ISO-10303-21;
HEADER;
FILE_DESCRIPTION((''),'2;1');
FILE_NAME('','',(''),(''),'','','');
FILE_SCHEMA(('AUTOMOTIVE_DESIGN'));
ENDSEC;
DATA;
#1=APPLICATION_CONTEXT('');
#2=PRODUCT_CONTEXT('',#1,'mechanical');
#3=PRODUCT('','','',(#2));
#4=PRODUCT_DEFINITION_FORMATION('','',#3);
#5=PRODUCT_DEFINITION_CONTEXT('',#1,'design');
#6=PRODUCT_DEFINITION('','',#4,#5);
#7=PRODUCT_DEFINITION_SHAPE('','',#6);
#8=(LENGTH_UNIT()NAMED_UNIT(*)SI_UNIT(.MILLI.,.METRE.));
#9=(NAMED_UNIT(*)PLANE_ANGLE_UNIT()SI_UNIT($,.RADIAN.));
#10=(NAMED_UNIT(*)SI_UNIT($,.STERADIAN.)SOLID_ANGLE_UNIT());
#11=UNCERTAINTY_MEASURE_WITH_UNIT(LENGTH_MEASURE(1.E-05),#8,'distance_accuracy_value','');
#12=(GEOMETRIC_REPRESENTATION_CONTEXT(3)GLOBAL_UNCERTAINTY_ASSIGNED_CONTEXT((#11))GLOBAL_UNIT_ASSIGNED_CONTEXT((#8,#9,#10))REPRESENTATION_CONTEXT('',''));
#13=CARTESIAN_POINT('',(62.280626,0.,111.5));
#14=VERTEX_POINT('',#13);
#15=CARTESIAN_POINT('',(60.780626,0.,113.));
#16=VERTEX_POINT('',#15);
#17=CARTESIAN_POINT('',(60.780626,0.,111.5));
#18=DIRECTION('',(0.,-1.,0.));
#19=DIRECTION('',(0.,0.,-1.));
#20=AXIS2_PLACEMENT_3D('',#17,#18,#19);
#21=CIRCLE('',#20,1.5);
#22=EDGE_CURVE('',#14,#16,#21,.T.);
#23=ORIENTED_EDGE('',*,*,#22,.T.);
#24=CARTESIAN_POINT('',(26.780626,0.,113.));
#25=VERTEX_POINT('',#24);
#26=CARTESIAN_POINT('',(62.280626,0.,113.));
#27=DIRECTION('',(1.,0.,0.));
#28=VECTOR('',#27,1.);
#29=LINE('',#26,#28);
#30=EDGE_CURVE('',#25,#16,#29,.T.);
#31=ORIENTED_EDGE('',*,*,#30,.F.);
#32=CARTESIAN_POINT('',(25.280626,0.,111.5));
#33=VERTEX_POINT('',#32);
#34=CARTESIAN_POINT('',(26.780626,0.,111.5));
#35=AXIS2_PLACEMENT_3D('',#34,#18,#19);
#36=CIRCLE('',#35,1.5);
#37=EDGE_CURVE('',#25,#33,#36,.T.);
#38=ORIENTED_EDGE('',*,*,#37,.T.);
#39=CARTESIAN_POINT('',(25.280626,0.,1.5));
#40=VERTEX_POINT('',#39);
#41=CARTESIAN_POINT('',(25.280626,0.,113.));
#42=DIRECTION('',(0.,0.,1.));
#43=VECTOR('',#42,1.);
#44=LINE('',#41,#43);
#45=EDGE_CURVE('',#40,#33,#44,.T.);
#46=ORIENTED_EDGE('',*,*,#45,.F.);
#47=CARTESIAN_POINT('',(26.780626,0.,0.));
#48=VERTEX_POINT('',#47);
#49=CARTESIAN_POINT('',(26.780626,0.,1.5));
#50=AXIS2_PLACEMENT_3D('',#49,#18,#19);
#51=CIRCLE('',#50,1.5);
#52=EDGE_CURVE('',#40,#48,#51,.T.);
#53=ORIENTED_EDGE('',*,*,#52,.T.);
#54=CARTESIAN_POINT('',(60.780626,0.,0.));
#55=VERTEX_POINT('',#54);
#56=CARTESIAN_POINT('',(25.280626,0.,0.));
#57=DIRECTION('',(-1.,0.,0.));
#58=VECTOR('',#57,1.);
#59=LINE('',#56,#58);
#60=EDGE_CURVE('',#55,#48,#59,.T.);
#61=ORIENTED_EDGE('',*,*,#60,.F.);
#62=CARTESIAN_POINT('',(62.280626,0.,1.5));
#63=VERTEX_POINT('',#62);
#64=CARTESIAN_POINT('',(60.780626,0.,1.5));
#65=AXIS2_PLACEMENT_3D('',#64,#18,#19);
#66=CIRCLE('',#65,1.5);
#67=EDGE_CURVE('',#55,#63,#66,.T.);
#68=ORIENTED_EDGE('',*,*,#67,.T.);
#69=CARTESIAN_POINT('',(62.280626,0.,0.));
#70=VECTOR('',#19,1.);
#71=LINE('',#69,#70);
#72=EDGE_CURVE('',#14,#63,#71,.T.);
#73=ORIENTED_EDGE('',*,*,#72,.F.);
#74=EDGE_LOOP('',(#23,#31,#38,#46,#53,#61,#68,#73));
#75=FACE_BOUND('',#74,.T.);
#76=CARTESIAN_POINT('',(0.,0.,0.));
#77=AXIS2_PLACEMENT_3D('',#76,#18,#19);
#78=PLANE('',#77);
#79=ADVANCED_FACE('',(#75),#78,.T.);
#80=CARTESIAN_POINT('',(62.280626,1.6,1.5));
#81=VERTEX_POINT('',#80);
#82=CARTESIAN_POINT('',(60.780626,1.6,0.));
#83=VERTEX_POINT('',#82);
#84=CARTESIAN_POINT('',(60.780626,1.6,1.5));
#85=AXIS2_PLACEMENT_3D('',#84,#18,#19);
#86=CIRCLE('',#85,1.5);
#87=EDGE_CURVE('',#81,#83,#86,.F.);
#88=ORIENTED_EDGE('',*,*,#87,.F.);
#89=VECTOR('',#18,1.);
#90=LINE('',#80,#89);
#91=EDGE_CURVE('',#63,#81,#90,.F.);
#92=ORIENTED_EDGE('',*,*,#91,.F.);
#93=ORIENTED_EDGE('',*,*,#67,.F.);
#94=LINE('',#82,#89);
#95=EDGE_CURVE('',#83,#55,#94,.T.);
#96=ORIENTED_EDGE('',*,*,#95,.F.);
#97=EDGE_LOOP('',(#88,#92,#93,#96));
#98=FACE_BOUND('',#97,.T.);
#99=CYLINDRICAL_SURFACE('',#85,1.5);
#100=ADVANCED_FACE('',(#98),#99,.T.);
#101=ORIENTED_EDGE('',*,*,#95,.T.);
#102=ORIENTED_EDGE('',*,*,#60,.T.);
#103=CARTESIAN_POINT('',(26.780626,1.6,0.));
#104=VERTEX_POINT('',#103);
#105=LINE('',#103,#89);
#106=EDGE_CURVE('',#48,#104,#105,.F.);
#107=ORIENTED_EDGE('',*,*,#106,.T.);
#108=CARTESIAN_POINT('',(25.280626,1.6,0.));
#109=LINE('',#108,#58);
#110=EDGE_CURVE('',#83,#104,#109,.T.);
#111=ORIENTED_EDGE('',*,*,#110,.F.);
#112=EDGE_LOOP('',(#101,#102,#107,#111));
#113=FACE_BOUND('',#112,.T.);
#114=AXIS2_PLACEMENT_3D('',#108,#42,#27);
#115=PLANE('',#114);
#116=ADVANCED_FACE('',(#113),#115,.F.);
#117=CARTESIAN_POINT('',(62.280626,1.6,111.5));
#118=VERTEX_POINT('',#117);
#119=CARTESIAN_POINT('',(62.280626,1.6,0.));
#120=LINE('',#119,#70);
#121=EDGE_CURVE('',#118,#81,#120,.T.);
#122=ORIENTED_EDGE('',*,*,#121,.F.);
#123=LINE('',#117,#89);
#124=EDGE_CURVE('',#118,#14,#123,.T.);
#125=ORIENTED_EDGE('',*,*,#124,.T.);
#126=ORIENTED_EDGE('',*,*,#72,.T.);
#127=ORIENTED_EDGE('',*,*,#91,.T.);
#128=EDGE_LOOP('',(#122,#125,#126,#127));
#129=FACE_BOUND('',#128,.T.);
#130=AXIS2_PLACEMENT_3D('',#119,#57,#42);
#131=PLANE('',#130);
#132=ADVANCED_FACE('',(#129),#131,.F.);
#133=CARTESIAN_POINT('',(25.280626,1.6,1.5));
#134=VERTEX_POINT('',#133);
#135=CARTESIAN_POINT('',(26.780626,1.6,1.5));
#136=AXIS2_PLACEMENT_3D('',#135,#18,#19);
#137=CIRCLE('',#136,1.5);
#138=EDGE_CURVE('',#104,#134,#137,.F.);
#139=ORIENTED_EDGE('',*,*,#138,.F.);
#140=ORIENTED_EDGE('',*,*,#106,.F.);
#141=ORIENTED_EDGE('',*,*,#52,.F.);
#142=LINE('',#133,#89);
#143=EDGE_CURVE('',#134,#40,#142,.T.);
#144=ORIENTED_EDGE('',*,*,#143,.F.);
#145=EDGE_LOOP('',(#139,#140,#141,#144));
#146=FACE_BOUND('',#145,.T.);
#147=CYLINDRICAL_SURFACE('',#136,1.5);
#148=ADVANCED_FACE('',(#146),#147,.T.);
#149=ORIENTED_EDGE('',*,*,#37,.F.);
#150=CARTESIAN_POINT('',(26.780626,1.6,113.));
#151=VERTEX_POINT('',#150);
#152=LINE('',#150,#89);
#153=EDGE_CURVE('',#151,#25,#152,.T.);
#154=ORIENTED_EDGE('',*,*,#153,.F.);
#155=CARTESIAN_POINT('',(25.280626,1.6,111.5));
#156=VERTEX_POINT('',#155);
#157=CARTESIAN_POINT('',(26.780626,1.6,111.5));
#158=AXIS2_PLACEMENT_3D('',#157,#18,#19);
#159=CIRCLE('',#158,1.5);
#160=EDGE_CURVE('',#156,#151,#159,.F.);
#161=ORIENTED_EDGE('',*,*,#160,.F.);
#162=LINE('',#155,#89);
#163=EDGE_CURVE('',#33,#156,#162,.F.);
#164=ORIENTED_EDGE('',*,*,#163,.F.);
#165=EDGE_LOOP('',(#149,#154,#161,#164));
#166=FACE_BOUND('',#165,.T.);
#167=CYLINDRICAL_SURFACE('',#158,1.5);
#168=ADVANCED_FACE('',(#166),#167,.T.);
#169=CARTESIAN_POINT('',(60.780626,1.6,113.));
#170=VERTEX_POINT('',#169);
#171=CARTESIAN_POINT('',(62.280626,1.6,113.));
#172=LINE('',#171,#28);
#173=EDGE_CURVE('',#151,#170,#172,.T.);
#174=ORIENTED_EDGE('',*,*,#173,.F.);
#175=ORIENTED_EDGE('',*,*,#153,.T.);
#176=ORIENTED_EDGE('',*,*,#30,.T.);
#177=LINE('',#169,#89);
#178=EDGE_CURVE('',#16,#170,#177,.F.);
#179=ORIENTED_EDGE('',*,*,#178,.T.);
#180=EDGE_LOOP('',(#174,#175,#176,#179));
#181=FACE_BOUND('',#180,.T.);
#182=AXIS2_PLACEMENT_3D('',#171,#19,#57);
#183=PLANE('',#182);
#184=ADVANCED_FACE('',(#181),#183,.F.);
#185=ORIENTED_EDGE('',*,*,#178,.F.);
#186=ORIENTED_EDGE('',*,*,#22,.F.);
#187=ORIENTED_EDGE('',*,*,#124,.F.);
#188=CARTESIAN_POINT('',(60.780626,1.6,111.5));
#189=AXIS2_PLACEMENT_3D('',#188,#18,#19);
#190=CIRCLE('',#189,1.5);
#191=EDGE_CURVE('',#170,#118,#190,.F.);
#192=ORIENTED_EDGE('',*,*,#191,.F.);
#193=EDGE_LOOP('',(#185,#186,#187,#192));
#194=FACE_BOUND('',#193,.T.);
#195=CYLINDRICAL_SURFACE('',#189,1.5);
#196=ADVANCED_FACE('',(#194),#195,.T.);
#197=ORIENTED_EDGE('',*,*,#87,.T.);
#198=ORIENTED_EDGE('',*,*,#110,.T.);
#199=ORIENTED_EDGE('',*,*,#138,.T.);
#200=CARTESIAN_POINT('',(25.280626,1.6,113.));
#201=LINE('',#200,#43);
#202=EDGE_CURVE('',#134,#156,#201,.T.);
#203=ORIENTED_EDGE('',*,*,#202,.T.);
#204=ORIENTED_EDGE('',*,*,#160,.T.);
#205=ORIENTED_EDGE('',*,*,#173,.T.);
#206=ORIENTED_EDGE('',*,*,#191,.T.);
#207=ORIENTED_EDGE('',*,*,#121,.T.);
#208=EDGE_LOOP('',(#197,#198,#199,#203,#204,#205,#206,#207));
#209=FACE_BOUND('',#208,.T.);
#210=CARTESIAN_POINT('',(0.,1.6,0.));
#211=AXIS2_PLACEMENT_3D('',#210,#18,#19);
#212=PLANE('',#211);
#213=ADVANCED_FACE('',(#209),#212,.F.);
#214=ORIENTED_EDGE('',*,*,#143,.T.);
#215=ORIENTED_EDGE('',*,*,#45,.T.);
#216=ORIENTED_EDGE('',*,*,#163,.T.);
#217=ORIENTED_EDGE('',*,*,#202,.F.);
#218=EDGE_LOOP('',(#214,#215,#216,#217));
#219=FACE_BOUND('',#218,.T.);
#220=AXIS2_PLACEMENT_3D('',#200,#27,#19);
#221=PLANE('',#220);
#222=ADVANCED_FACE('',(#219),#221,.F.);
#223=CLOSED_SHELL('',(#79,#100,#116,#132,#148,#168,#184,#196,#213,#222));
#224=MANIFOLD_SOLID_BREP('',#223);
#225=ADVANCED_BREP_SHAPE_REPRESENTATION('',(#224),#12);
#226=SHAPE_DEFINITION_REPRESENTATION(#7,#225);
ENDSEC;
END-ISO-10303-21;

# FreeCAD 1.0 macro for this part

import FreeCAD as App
import Part
import Sketcher
Q = App.Units.Quantity


def edges_at(feature, points):
    """Names of the edges that pass closest to the given points."""
    edges = feature.Shape.Edges
    near = lambda p: min(range(len(edges)), key=lambda i: edges[i].distToShape(Part.Vertex(*p))[0])
    return sorted({f"Edge{near(p) + 1}" for p in points})

doc = App.newDocument("Part")
params = doc.addObject("Spreadsheet::Sheet", "Params")
for row, (alias, value) in enumerate([
    ("sketch1_width", "37 mm"),
    ("sketch1_height", "113 mm"),
    ("pad1_length", "1.6 mm"),
    ("fillet_radius", "1.5 mm"),
], start=1):
    params.set(f"A{row}", alias)
    params.set(f"B{row}", "=" + value)
    params.setAlias(f"B{row}", alias)

body = doc.addObject("PartDesign::Body", "Body")

# Sketch on XZ plane
sketch1 = body.newObject("Sketcher::SketchObject", "Sketch")
sketch1.AttachmentSupport = (doc.getObject("XZ_Plane"), [""])
sketch1.MapMode = "FlatFace"
sketch1.addGeometry(Part.LineSegment(App.Vector(25.280626, 0, 0), App.Vector(25.280626, 113, 0)), False)
sketch1.addGeometry(Part.LineSegment(App.Vector(25.280626, 113, 0), App.Vector(62.280626, 113, 0)), False)
sketch1.addGeometry(Part.LineSegment(App.Vector(62.280626, 113, 0), App.Vector(62.280626, 0, 0)), False)
sketch1.addGeometry(Part.LineSegment(App.Vector(62.280626, 0, 0), App.Vector(25.280626, 0, 0)), False)
sketch1.addConstraint(Sketcher.Constraint("Coincident", 0, 2, 1, 1))
sketch1.addConstraint(Sketcher.Constraint("Coincident", 1, 2, 2, 1))
sketch1.addConstraint(Sketcher.Constraint("Coincident", 2, 2, 3, 1))
sketch1.addConstraint(Sketcher.Constraint("Coincident", 3, 2, 0, 1))
sketch1.addConstraint(Sketcher.Constraint("Vertical", 0))
sketch1.addConstraint(Sketcher.Constraint("Horizontal", 1))
sketch1.addConstraint(Sketcher.Constraint("Vertical", 2))
sketch1.addConstraint(Sketcher.Constraint("Horizontal", 3))
sketch1.addConstraint(Sketcher.Constraint("PointOnObject", 2, 2, -1))
sketch1.addConstraint(Sketcher.Constraint("DistanceX", 1, 1, 1, 2, Q("37 mm")))
sketch1.addConstraint(Sketcher.Constraint("DistanceY", 0, 1, 0, 2, Q("113 mm")))
sketch1.addConstraint(Sketcher.Constraint("DistanceX", -1, 1, 0, 2, Q("25.280626 mm")))
sketch1.setExpression("Constraints[9]", "Params.sketch1_width")
sketch1.setExpression("Constraints[10]", "Params.sketch1_height")
pad1 = body.newObject("PartDesign::Pad", "Pad")
pad1.Profile = sketch1
pad1.setExpression("Length", "Params.pad1_length")
pad1.Reversed = True
doc.recompute()

fillet = body.newObject("PartDesign::Fillet", "Fillet")
fillet.Base = (pad1, edges_at(pad1, [
    (25.281, 0.8, 0),
    (62.281, 0.8, 0),
    (62.281, 0.8, 113),
    (25.281, 0.8, 113),
]))
fillet.setExpression("Radius", "Params.fillet_radius")

doc.recompute()
